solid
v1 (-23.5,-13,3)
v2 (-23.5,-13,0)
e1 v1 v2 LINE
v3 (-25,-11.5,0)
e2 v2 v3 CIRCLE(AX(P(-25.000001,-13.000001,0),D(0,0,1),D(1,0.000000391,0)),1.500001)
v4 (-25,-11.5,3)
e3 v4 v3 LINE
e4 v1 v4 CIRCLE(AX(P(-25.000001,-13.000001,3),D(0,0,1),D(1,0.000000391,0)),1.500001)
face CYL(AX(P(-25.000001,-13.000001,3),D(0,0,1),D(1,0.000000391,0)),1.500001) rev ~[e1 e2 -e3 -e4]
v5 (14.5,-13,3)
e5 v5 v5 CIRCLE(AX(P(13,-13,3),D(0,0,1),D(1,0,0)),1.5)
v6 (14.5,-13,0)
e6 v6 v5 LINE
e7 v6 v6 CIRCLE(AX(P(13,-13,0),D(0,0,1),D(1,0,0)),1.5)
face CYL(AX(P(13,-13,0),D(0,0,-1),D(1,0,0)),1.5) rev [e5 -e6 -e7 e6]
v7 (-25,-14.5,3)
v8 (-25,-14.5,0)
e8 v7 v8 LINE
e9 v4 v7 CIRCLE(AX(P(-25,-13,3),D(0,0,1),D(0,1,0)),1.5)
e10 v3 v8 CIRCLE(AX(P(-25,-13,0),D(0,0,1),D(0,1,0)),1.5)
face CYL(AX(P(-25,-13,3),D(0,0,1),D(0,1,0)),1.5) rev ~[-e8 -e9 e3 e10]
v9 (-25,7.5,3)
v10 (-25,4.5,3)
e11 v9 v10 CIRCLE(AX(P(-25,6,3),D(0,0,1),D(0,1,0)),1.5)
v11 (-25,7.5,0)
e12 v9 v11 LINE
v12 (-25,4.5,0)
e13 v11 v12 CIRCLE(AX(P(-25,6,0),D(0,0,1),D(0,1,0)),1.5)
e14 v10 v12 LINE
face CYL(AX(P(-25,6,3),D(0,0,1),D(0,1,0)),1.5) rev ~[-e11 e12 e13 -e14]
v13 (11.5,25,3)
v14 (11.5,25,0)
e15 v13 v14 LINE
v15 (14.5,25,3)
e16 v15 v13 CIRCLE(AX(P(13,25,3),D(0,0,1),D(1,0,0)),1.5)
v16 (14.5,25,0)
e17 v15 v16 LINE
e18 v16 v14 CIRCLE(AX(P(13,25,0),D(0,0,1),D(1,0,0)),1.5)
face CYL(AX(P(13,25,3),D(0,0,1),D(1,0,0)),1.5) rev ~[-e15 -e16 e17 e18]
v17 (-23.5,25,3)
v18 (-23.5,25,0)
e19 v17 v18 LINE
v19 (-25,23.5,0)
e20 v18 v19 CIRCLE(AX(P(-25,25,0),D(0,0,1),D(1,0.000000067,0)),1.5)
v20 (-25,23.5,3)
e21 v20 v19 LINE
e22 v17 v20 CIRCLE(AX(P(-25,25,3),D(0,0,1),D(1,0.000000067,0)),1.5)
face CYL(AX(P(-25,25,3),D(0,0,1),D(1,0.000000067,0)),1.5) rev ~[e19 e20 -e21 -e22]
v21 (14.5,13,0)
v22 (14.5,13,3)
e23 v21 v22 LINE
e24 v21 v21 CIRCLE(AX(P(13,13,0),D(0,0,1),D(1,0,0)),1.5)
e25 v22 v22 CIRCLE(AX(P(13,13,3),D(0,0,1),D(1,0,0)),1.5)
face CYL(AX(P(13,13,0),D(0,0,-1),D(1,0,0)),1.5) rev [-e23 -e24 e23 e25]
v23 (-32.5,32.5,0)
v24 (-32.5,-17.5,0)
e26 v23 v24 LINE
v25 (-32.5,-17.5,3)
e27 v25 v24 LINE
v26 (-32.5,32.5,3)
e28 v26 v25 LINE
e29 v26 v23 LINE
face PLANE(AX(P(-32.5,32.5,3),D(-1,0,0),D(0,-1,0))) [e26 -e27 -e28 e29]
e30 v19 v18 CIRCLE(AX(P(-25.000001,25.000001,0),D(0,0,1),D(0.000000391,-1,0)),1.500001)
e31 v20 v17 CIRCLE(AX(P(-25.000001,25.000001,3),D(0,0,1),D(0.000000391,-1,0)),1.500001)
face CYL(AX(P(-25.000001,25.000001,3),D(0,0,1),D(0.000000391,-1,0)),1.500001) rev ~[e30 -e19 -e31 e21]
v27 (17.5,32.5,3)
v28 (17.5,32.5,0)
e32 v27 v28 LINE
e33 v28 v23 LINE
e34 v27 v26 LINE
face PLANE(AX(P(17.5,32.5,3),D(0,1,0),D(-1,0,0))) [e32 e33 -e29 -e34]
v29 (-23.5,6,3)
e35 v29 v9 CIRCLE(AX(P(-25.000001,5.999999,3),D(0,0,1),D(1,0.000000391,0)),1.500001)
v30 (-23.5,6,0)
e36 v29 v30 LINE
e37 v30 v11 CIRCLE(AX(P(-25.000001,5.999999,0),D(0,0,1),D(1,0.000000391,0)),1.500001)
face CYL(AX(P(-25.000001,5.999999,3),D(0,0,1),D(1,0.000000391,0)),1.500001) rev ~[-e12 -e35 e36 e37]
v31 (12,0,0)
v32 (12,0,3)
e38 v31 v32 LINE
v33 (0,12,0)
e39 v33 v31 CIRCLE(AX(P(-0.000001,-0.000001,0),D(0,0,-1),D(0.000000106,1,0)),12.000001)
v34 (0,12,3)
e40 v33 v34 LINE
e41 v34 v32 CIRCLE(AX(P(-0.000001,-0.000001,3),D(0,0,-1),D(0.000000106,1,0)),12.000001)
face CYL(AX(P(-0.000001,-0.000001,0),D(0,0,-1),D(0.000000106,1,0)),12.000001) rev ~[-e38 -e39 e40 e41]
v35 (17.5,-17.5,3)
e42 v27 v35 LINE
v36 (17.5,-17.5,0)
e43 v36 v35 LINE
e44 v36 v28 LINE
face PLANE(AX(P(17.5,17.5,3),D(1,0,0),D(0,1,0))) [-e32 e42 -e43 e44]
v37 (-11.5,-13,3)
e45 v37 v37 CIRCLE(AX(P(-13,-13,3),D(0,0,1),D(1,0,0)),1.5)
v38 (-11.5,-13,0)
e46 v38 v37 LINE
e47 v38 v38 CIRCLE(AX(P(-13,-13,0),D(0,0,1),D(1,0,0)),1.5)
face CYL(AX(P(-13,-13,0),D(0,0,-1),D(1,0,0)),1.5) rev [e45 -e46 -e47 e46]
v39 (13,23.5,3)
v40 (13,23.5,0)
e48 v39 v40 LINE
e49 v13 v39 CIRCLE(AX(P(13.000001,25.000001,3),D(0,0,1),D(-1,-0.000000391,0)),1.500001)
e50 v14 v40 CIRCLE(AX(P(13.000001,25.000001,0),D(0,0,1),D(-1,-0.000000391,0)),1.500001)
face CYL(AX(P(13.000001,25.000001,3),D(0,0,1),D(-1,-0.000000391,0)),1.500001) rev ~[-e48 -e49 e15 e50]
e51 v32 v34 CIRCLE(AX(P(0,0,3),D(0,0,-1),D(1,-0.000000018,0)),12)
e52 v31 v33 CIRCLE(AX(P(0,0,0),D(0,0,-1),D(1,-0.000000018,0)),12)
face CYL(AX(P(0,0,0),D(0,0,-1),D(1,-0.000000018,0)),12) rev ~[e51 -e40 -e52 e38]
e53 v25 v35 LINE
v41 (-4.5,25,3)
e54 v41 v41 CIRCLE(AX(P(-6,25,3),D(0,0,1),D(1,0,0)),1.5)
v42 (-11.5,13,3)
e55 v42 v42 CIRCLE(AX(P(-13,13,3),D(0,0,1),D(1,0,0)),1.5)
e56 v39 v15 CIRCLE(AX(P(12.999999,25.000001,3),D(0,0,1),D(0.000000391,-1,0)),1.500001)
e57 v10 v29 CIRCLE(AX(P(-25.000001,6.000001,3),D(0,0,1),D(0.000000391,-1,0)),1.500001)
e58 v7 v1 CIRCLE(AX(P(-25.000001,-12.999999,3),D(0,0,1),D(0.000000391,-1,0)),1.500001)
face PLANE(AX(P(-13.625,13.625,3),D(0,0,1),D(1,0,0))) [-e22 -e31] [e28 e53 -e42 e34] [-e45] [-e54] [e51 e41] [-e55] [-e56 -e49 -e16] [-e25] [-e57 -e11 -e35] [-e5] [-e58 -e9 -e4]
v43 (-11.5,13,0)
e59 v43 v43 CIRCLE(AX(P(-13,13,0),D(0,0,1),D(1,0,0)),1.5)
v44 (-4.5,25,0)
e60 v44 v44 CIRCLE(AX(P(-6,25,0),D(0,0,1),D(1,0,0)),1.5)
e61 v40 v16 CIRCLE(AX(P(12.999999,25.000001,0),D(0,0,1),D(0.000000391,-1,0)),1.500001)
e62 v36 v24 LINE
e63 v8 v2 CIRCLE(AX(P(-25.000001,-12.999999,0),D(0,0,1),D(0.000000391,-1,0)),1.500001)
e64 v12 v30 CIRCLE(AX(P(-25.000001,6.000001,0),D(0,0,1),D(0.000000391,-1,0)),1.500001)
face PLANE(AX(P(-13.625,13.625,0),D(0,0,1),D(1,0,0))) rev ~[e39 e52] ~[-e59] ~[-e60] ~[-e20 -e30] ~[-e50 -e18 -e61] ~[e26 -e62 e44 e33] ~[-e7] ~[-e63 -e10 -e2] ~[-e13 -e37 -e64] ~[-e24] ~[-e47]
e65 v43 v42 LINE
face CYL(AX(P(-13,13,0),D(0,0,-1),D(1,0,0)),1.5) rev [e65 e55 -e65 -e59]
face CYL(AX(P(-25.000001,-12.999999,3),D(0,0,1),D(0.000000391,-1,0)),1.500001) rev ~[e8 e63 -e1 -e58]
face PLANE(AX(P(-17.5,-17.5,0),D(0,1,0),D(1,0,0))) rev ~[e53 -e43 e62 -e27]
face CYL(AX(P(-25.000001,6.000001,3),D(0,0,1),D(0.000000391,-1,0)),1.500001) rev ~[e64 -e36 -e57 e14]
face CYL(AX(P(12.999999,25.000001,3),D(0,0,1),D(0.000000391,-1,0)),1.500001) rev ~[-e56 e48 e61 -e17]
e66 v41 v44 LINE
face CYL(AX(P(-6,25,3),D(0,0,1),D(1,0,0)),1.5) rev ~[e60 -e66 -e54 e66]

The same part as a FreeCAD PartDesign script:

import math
import FreeCAD as App
import Part
import Sketcher
from FreeCAD import Vector
Q = App.Units.Quantity


def add_polygon(sketch, points):
    """Adds a closed chain of lines whose ends are joined by coincident constraints."""
    first, n = sketch.GeometryCount, len(points)
    for a, b in zip(points, points[1:] + points[:1]):
        sketch.addGeometry(Part.LineSegment(App.Vector(*a, 0), App.Vector(*b, 0)), False)
    for i in range(n):
        sketch.addConstraint(Sketcher.Constraint("Coincident", first + i, 2, first + (i + 1) % n, 1))

doc = App.newDocument("Part")
body = doc.addObject("PartDesign::Body", "Body")

sketch1 = body.newObject("Sketcher::SketchObject", "Sketch")
sketch1.AttachmentSupport = (doc.getObject("XY_Plane"), [""])
sketch1.MapMode = "FlatFace"
add_polygon(sketch1, [(-17.5, 17.5), (-17.5, -17.5), (17.5, -17.5), (17.5, 17.5)])
sketch1.addGeometry(Part.Circle(Vector(-13, -13, 0), Vector(0, 0, 1), 1.5), False)
sketch1.addGeometry(Part.Circle(Vector(13, -13, 0), Vector(0, 0, 1), 1.5), False)
sketch1.addGeometry(Part.Circle(Vector(-13, 13, 0), Vector(0, 0, 1), 1.5), False)
sketch1.addGeometry(Part.ArcOfCircle(Part.Circle(Vector(0, 0, 0), Vector(0, 0, 1), 12), math.radians(90.000001), math.radians(359.999999)), False)
sketch1.addGeometry(Part.ArcOfCircle(Part.Circle(Vector(-0.000001, -0.000001, 0), Vector(0, 0, 1), 12.000001), math.radians(0.000006), math.radians(89.999994)), False)
sketch1.addGeometry(Part.Circle(Vector(13, 13, 0), Vector(0, 0, 1), 1.5), False)
sketch1.addConstraint([
    Sketcher.Constraint("Tangent", 7, 1, 8, 2),
    Sketcher.Constraint("Coincident", 8, 1, 7, 2),
    Sketcher.Constraint("Vertical", 0),
    Sketcher.Constraint("Horizontal", 1),
    Sketcher.Constraint("Vertical", 2),
    Sketcher.Constraint("Horizontal", 3),
    Sketcher.Constraint("Coincident", 7, 3, -1, 1),
    Sketcher.Constraint("Equal", 4, 5),
    Sketcher.Constraint("Equal", 5, 6),
    Sketcher.Constraint("Equal", 6, 9),
    Sketcher.Constraint("Symmetric", 5, 3, 6, 3, -1, 1),
    Sketcher.Constraint("Symmetric", 4, 3, 9, 3, -1, 1),
    Sketcher.Constraint("Symmetric", 0, 2, 2, 2, -1, 1),
    Sketcher.Constraint("Symmetric", 4, 3, 5, 3, -2),
    Sketcher.Constraint("PointOnObject", 7, 1, -2),
    Sketcher.Constraint("PointOnObject", 8, 1, -1),
    Sketcher.Constraint("Equal", 3, 0),
    Sketcher.Constraint("Diameter", 4, Q("3 mm")),
    Sketcher.Constraint("Radius", 7, Q("12 mm")),
    Sketcher.Constraint("DistanceX", 1, 1, 1, 2, Q("35 mm")),
    Sketcher.Constraint("DistanceX", 4, 3, -1, 1, Q("13 mm")),
    Sketcher.Constraint("DistanceY", 4, 3, -1, 1, Q("13 mm")),
])
pad1 = body.newObject("PartDesign::Pad", "Pad")
pad1.Profile = sketch1
pad1.Length = 3

sketch2 = body.newObject("Sketcher::SketchObject", "Sketch001")
sketch2.AttachmentSupport = (doc.getObject("XY_Plane"), [""])
sketch2.MapMode = "FlatFace"
sketch2.AttachmentOffset = App.Placement(Vector(0, 0, 3), App.Rotation())
add_polygon(sketch2, [(17.5, 17.5), (17.5, 32.5), (-32.5, 32.5), (-32.5, -17.5), (-17.5, -17.5), (-17.5, 17.5)])
sketch2.addConstraint([
    Sketcher.Constraint("Vertical", 0),
    Sketcher.Constraint("Horizontal", 1),
    Sketcher.Constraint("Vertical", 2),
    Sketcher.Constraint("Horizontal", 3),
    Sketcher.Constraint("Vertical", 4),
    Sketcher.Constraint("Horizontal", 5),
    Sketcher.Constraint("Symmetric", 3, 2, 5, 2, -1, 1),
    Sketcher.Constraint("Equal", 3, 0),
    Sketcher.Constraint("Equal", 1, 2),
    Sketcher.Constraint("DistanceX", 1, 2, 1, 1, Q("50 mm")),
    Sketcher.Constraint("DistanceX", 3, 1, 3, 2, Q("15 mm")),
])
pad2 = body.newObject("PartDesign::Pad", "Pad001")
pad2.Profile = sketch2
pad2.Length = 3
pad2.Reversed = True

sketch3 = body.newObject("Sketcher::SketchObject", "Sketch002")
sketch3.AttachmentSupport = (doc.getObject("XY_Plane"), [""])
sketch3.MapMode = "FlatFace"
sketch3.AttachmentOffset = App.Placement(Vector(0, 0, 3), App.Rotation())
sketch3.addGeometry([
    Part.ArcOfCircle(Part.Circle(Vector(12.999999, 25.000001, 0), Vector(0, 0, 1), 1.500001), math.radians(-89.999978), math.radians(-0.000022)),
    Part.ArcOfCircle(Part.Circle(Vector(13, 25, 0), Vector(0, 0, 1), 1.5), math.radians(0), math.radians(180)),
    Part.ArcOfCircle(Part.Circle(Vector(13.000001, 25.000001, 0), Vector(0, 0, 1), 1.500001), math.radians(-179.999978), math.radians(-90.000022)),
    Part.ArcOfCircle(Part.Circle(Vector(-25.000001, -13.000001, 0), Vector(0, 0, 1), 1.500001), math.radians(0.000022), math.radians(89.999978)),
    Part.ArcOfCircle(Part.Circle(Vector(-25, -13, 0), Vector(0, 0, 1), 1.5), math.radians(90), math.radians(270)),
    Part.ArcOfCircle(Part.Circle(Vector(-25.000001, -12.999999, 0), Vector(0, 0, 1), 1.500001), math.radians(-89.999978), math.radians(-0.000022)),
    Part.ArcOfCircle(Part.Circle(Vector(-25.000001, 5.999999, 0), Vector(0, 0, 1), 1.500001), math.radians(0.000022), math.radians(89.999978)),
    Part.ArcOfCircle(Part.Circle(Vector(-25, 6, 0), Vector(0, 0, 1), 1.5), math.radians(90), math.radians(270)),
    Part.ArcOfCircle(Part.Circle(Vector(-25.000001, 6.000001, 0), Vector(0, 0, 1), 1.500001), math.radians(-89.999978), math.radians(-0.000022)),
    Part.ArcOfCircle(Part.Circle(Vector(-25.000001, 25.000001, 0), Vector(0, 0, 1), 1.500001), math.radians(-89.999978), math.radians(-0.000022)),
    Part.ArcOfCircle(Part.Circle(Vector(-25, 25, 0), Vector(0, 0, 1), 1.5), math.radians(0.000004), math.radians(269.999996)),
    Part.Circle(Vector(-6, 25, 0), Vector(0, 0, 1), 1.5),
], False)
sketch3.addConstraint([
    Sketcher.Constraint("Tangent", 0, 2, 1, 1),
    Sketcher.Constraint("Tangent", 1, 2, 2, 1),
    Sketcher.Constraint("Tangent", 2, 2, 0, 1),
    Sketcher.Constraint("Tangent", 3, 2, 4, 1),
    Sketcher.Constraint("Tangent", 4, 2, 5, 1),
    Sketcher.Constraint("Tangent", 5, 2, 3, 1),
    Sketcher.Constraint("Tangent", 6, 2, 7, 1),
    Sketcher.Constraint("Tangent", 7, 2, 8, 1),
    Sketcher.Constraint("Tangent", 8, 2, 6, 1),
    Sketcher.Constraint("Tangent", 9, 1, 10, 2),
    Sketcher.Constraint("Coincident", 10, 1, 9, 2),
    Sketcher.Constraint("Equal", 2, 3),
    Sketcher.Constraint("Equal", 5, 6),
    Sketcher.Constraint("Equal", 8, 9),
    Sketcher.Constraint("Equal", 10, 11),
    Sketcher.Constraint("Horizontal", 2, 3, 9, 3),
    Sketcher.Constraint("Horizontal", 10, 3, 11, 3),
    Sketcher.Constraint("Horizontal", 11, 3, 0, 2),
    Sketcher.Constraint("Horizontal", 0, 2, 1, 2),
    Sketcher.Constraint("Horizontal", 4, 3, 5, 2),
    Sketcher.Constraint("Horizontal", 7, 3, 8, 2),
    Sketcher.Constraint("Horizontal", 1, 2, 10, 1),
    Sketcher.Constraint("Vertical", 5, 3, 6, 3),
    Sketcher.Constraint("Vertical", 8, 3, 9, 3),
    Sketcher.Constraint("Vertical", 1, 3, 2, 2),
    Sketcher.Constraint("Vertical", 10, 3, 3, 2),
    Sketcher.Constraint("Vertical", 3, 2, 4, 2),
    Sketcher.Constraint("Vertical", 4, 2, 6, 2),
    Sketcher.Constraint("Vertical", 6, 2, 7, 2),
    Sketcher.Constraint("Vertical", 7, 2, 9, 1),
    Sketcher.Constraint("Diameter", 11, Q("3 mm")),
    Sketcher.Constraint("DistanceX", -1, 1, 0, 3, Q("12.999999 mm")),
    Sketcher.Constraint("DistanceY", -1, 1, 0, 3, Q("25.000001 mm")),
    Sketcher.Constraint("DistanceX", 3, 3, -1, 1, Q("25.000001 mm")),
    Sketcher.Constraint("DistanceY", 3, 3, -1, 1, Q("13.000001 mm")),
    Sketcher.Constraint("DistanceY", -1, 1, 6, 3, Q("5.999999 mm")),
    Sketcher.Constraint("DistanceX", 11, 3, -1, 1, Q("6 mm")),
])
pocket1 = body.newObject("PartDesign::Pocket", "Pocket")
pocket1.Profile = sketch3
pocket1.Length = 25

doc.recompute()
